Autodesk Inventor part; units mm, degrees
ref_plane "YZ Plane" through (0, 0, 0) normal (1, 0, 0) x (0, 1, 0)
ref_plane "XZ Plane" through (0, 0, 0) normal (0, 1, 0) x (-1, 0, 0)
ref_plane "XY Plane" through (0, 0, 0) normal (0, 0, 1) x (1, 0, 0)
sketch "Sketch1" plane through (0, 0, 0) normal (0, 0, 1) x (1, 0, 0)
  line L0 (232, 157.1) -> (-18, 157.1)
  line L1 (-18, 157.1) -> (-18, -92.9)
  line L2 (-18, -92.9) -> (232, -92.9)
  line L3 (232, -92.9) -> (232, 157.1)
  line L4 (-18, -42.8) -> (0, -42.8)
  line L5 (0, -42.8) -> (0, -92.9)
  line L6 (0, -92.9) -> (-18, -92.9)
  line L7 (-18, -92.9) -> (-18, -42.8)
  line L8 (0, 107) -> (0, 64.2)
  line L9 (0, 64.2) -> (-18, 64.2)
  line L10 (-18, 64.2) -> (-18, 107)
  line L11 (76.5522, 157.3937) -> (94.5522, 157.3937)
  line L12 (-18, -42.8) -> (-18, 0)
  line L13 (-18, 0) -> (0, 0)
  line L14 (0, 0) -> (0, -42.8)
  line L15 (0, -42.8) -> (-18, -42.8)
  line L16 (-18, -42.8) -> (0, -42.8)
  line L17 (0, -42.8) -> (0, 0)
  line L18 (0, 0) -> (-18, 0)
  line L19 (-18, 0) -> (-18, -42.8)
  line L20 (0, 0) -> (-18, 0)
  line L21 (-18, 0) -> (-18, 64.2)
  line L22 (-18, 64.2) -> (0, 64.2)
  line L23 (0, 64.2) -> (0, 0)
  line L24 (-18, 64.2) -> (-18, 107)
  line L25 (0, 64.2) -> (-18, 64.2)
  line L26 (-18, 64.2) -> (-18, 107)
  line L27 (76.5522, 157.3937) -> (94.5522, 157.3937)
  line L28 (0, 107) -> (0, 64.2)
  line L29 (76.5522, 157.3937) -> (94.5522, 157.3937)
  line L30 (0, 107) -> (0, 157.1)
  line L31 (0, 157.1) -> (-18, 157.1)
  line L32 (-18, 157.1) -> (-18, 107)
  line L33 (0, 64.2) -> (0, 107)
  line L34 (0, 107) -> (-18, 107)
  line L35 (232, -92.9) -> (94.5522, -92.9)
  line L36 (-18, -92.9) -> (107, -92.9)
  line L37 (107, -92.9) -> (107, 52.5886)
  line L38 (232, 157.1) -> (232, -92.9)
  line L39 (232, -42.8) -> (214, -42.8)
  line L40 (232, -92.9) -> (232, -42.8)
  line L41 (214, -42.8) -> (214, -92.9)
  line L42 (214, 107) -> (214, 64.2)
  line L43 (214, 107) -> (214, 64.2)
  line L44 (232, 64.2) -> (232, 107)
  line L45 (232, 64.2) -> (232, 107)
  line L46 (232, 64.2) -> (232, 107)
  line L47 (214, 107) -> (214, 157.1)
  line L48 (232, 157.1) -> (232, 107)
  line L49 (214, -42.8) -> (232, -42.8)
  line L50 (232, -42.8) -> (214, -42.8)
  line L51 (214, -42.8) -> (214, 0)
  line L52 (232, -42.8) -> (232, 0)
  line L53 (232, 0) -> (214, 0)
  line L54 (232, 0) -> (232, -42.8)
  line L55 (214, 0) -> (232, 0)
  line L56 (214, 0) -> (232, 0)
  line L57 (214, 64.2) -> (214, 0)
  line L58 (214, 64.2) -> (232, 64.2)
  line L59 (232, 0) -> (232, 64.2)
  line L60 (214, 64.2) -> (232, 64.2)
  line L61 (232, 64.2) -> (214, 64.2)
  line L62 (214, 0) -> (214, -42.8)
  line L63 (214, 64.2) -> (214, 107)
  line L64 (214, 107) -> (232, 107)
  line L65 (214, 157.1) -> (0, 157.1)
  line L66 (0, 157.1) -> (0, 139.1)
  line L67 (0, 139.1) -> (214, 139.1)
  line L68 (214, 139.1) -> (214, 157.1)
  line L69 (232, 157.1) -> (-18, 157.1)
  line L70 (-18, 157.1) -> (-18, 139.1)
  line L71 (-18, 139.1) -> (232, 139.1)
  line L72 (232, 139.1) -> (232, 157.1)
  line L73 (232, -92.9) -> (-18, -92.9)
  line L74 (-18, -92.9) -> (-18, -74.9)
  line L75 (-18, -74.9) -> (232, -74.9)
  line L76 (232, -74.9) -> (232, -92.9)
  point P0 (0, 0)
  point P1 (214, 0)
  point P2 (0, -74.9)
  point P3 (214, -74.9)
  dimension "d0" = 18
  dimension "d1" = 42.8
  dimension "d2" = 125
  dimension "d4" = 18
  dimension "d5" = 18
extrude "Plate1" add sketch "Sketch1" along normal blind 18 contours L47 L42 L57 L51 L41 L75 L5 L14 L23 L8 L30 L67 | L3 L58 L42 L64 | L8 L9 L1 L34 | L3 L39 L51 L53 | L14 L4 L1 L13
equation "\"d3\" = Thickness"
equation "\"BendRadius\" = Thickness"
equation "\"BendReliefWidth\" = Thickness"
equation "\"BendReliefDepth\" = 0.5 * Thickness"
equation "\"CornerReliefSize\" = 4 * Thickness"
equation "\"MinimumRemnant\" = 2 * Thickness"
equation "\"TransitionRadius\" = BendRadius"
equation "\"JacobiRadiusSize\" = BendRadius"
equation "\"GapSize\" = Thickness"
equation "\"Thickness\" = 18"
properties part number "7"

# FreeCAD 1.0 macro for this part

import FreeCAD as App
import Part
import Sketcher
from FreeCAD import Vector
Q = App.Units.Quantity


def add_polygon(sketch, points):
    """Adds a closed chain of lines whose ends are joined by coincident constraints."""
    first, n = sketch.GeometryCount, len(points)
    for a, b in zip(points, points[1:] + points[:1]):
        sketch.addGeometry(Part.LineSegment(App.Vector(*a, 0), App.Vector(*b, 0)), False)
    for i in range(n):
        sketch.addConstraint(Sketcher.Constraint("Coincident", first + i, 2, first + (i + 1) % n, 1))

doc = App.newDocument("Part")
body = doc.addObject("PartDesign::Body", "Body")

# Sketch on XY plane
sketch1 = body.newObject("Sketcher::SketchObject", "Sketch")
sketch1.AttachmentSupport = (doc.getObject("XY_Plane"), [""])
sketch1.MapMode = "FlatFace"
add_polygon(sketch1, [(214, 107), (214, 139), (0, 139), (0, 107), (-18, 107), (-18, 64), (0, 64), (0, 0), (-18, 0), (-18, -43), (0, -43), (0, -75), (214, -75), (214, -43), (232, -43), (232, 0), (214, 0), (214, 64), (232, 64), (232, 107)])  # lines 0-19
sketch1.addConstraint([
    Sketcher.Constraint("Vertical", 0),
    Sketcher.Constraint("Horizontal", 1),
    Sketcher.Constraint("Vertical", 2),
    Sketcher.Constraint("Horizontal", 3),
    Sketcher.Constraint("Vertical", 4),
    Sketcher.Constraint("Horizontal", 5),
    Sketcher.Constraint("Vertical", 6),
    Sketcher.Constraint("Horizontal", 7),
    Sketcher.Constraint("Vertical", 8),
    Sketcher.Constraint("Horizontal", 9),
    Sketcher.Constraint("Vertical", 10),
    Sketcher.Constraint("Horizontal", 11),
    Sketcher.Constraint("Vertical", 12),
    Sketcher.Constraint("Horizontal", 13),
    Sketcher.Constraint("Vertical", 14),
    Sketcher.Constraint("Horizontal", 15),
    Sketcher.Constraint("Vertical", 16),
    Sketcher.Constraint("Horizontal", 17),
    Sketcher.Constraint("Vertical", 18),
    Sketcher.Constraint("Horizontal", 19),
    Sketcher.Constraint("Coincident", 6, 2, -1, 1),
    Sketcher.Constraint("PointOnObject", 1, 2, -2),
    Sketcher.Constraint("PointOnObject", 9, 2, -2),
    Sketcher.Constraint("PointOnObject", 14, 2, -1),
    Sketcher.Constraint("Horizontal", 9, 2, 12, 2),
    Sketcher.Constraint("Horizontal", 5, 2, 16, 2),
    Sketcher.Constraint("Horizontal", 3, 2, 18, 2),
    Sketcher.Constraint("Vertical", 4, 2, 7, 2),
    Sketcher.Constraint("Vertical", 0, 2, 11, 2),
    Sketcher.Constraint("Vertical", 12, 2, 15, 2),
    Sketcher.Constraint("Vertical", 14, 2, 17, 2),
    Sketcher.Constraint("Equal", 9, 13),
    Sketcher.Constraint("Equal", 4, 8),
    Sketcher.Constraint("Equal", 2, 10),
    Sketcher.Constraint("DistanceX", 3, 2, 3, 1, Q("18 mm")),
    Sketcher.Constraint("DistanceY", 4, 2, 4, 1, Q("42.8 mm")),
    Sketcher.Constraint("DistanceX", 1, 2, 1, 1, Q("214 mm")),
    Sketcher.Constraint("DistanceY", 0, 1, 0, 2, Q("32.1 mm")),
    Sketcher.Constraint("DistanceY", 6, 2, 6, 1, Q("64.2 mm")),
])
pad1 = body.newObject("PartDesign::Pad", "Pad")
pad1.Profile = sketch1
pad1.Length = 18

doc.recompute()
